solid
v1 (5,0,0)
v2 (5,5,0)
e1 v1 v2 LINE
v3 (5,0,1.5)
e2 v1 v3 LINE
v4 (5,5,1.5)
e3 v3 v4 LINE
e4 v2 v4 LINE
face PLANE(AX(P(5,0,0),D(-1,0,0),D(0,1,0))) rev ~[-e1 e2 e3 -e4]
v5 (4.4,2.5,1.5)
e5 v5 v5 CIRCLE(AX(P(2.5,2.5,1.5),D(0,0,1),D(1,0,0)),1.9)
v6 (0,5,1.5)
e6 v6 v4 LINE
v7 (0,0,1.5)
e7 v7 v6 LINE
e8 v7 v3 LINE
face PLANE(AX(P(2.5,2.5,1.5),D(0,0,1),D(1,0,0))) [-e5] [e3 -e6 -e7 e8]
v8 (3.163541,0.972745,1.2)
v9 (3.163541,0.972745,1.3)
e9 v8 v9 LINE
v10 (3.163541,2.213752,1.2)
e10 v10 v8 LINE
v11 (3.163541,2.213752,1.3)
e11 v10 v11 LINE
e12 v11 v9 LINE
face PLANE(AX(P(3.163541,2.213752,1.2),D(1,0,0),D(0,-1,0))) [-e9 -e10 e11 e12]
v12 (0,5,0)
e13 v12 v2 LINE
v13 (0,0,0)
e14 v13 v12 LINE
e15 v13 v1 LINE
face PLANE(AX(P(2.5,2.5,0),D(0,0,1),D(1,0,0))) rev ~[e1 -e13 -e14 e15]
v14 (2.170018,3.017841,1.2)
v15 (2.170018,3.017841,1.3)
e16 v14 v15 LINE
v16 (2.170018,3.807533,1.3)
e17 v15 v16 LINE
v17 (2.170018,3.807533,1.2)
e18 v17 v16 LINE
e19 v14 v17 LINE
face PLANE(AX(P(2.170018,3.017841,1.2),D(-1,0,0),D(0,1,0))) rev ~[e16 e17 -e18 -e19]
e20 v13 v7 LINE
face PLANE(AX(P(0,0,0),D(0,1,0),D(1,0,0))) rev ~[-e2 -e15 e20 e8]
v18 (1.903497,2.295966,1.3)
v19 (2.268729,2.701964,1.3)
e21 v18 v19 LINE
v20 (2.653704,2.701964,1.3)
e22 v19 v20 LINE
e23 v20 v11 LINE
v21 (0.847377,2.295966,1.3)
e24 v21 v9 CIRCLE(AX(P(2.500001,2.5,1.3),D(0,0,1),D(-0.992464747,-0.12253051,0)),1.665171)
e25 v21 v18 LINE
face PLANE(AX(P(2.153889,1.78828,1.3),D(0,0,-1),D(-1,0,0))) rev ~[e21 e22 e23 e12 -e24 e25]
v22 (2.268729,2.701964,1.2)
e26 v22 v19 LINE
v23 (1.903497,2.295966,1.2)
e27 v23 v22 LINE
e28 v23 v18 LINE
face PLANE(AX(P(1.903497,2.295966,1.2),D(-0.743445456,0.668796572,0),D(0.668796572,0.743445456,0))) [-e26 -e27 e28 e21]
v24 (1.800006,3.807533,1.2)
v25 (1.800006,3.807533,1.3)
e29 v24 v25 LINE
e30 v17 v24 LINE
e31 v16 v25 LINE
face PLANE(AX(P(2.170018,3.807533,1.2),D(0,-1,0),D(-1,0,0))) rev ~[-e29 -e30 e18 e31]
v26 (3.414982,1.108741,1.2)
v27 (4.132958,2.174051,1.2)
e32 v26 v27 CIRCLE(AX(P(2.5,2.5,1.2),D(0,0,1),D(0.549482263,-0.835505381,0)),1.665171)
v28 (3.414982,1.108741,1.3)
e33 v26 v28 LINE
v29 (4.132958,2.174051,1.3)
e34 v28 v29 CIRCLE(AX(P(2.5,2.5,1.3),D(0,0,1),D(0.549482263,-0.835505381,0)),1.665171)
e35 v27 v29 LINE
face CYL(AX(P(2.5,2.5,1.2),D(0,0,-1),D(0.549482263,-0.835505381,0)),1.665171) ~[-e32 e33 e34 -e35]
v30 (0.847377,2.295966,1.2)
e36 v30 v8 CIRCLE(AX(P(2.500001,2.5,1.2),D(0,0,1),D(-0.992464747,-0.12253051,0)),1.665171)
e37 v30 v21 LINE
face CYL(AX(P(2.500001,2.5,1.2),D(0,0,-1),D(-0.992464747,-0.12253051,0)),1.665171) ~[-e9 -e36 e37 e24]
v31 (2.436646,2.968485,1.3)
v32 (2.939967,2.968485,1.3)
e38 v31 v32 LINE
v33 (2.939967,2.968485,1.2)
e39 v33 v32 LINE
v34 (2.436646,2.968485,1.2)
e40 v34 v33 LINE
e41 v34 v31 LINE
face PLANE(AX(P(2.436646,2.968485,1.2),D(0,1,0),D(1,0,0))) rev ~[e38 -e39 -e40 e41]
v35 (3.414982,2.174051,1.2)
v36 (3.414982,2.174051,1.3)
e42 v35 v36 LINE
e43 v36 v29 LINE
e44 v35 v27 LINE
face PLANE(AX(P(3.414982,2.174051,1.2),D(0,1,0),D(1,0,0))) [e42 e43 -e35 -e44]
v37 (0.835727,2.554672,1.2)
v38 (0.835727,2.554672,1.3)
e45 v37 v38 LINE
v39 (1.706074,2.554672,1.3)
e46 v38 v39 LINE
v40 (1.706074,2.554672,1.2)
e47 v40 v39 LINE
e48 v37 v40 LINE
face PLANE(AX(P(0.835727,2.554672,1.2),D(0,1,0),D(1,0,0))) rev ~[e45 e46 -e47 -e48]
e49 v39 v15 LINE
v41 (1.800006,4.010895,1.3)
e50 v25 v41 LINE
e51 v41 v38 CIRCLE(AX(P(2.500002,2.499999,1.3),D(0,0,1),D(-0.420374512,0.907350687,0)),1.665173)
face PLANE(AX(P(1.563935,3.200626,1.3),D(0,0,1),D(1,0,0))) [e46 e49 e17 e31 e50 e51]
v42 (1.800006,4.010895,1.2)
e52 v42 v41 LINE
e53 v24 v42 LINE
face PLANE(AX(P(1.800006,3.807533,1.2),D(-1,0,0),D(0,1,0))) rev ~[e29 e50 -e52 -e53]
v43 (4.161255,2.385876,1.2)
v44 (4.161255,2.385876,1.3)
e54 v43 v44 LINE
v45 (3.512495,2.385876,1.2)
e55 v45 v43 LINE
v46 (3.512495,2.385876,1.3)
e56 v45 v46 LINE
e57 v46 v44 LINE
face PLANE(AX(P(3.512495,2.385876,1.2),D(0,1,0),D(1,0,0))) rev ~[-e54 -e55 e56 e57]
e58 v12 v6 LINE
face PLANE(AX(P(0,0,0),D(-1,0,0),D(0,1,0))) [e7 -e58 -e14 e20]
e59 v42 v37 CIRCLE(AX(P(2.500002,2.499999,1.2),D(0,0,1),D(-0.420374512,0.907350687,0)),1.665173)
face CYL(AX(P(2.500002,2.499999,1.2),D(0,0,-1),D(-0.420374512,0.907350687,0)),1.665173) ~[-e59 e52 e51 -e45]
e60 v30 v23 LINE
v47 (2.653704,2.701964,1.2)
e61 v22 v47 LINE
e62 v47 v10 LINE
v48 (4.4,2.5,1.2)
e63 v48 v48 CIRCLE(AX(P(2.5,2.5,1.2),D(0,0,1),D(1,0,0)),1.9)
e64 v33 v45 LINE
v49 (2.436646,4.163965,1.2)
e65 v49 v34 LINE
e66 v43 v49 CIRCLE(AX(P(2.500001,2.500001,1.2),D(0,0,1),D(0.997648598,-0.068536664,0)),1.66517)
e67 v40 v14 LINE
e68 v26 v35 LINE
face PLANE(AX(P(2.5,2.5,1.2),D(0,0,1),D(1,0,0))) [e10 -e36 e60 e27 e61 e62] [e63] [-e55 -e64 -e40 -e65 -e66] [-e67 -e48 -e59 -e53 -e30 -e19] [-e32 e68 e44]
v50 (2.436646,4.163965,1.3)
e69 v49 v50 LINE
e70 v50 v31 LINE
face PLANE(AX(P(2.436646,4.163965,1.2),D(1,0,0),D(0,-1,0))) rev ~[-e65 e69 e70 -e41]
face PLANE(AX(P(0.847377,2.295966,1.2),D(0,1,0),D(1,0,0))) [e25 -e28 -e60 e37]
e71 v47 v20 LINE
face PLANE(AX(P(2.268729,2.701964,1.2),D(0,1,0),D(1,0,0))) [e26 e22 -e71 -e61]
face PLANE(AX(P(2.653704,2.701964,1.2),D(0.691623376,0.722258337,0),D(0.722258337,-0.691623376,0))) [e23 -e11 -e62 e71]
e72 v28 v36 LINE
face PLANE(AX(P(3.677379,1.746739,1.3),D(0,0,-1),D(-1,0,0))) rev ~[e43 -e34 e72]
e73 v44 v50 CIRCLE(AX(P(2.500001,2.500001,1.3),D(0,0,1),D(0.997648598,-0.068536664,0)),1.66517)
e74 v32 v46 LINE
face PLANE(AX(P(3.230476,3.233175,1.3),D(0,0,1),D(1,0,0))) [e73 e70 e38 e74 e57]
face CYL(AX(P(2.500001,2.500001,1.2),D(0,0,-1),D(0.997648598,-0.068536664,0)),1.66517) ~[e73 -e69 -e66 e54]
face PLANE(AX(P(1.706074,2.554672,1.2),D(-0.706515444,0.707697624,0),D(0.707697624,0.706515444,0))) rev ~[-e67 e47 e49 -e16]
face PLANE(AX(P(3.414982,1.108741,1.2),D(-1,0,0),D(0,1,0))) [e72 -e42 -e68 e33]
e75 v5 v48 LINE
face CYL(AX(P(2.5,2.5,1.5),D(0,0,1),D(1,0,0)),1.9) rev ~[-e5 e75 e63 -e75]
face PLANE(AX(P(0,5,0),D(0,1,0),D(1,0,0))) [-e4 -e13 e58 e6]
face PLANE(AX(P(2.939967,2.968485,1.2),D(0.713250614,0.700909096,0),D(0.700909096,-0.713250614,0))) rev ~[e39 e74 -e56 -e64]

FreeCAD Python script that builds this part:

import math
import FreeCAD as App
import Part
import Sketcher
from FreeCAD import Vector

doc = App.newDocument("Part")
body = doc.addObject("PartDesign::Body", "Body")

sketch1 = body.newObject("Sketcher::SketchObject", "Sketch")
sketch1.AttachmentSupport = (doc.getObject("XY_Plane"), [""])
sketch1.MapMode = "FlatFace"
sketch1.addGeometry([
    Part.LineSegment(Vector(0, 5, 0), Vector(0, 0, 0)),
    Part.LineSegment(Vector(0, 0, 0), Vector(5, 0, 0)),
    Part.LineSegment(Vector(5, 0, 0), Vector(5, 5, 0)),
    Part.LineSegment(Vector(5, 5, 0), Vector(0, 5, 0)),
], False)
sketch1.addConstraint([
    Sketcher.Constraint("Coincident", 0, 2, 1, 1),
    Sketcher.Constraint("Coincident", 1, 2, 2, 1),
    Sketcher.Constraint("Coincident", 2, 2, 3, 1),
    Sketcher.Constraint("Coincident", 3, 2, 0, 1),
    Sketcher.Constraint("Vertical", 0),
    Sketcher.Constraint("Horizontal", 1),
    Sketcher.Constraint("Vertical", 2),
    Sketcher.Constraint("Horizontal", 3),
    Sketcher.Constraint("Coincident", 0, 2, -1, 1),
    Sketcher.Constraint("Equal", 3, 0),
    Sketcher.Constraint("DistanceX", 1, 1, 1, 2, 5.0),
])
pad1 = body.newObject("PartDesign::Pad", "Pad")
pad1.Profile = sketch1
pad1.Length = 1.5

sketch2 = body.newObject("Sketcher::SketchObject", "Sketch001")
sketch2.AttachmentSupport = (doc.getObject("XY_Plane"), [""])
sketch2.MapMode = "FlatFace"
sketch2.AttachmentOffset = App.Placement(Vector(0, 0, 1.5), App.Rotation())
sketch2.addGeometry(Part.Circle(Vector(2.5, 2.5, 0), Vector(0, 0, 1), 1.9), False)
sketch2.addConstraint([
    Sketcher.Constraint("Diameter", 0, 3.8),
    Sketcher.Constraint("DistanceX", -1, 1, 0, 3, 2.5),
    Sketcher.Constraint("DistanceY", -1, 1, 0, 3, 2.5),
])
pocket1 = body.newObject("PartDesign::Pocket", "Pocket")
pocket1.Profile = sketch2
pocket1.Length = 0.3

sketch3 = body.newObject("Sketcher::SketchObject", "Sketch002")
sketch3.AttachmentSupport = (doc.getObject("XY_Plane"), [""])
sketch3.MapMode = "FlatFace"
sketch3.AttachmentOffset = App.Placement(Vector(0, 0, 1.2), App.Rotation())
sketch3.addGeometry([
    Part.LineSegment(Vector(0.835727, 2.554672, 0), Vector(1.706074, 2.554672, 0)),
    Part.LineSegment(Vector(1.706074, 2.554672, 0), Vector(2.170018, 3.017841, 0)),
    Part.LineSegment(Vector(2.170018, 3.017841, 0), Vector(2.170018, 3.807533, 0)),
    Part.LineSegment(Vector(2.170018, 3.807533, 0), Vector(1.800006, 3.807533, 0)),
    Part.LineSegment(Vector(1.800006, 3.807533, 0), Vector(1.800006, 4.010895, 0)),
    Part.ArcOfCircle(Part.Circle(Vector(2.500002, 2.499999, 0), Vector(0, 0, 1), 1.665173), math.radians(114.858234), math.radians(178.118457)),
    Part.LineSegment(Vector(2.436646, 4.163965, 0), Vector(2.436646, 2.968485, 0)),
    Part.LineSegment(Vector(2.436646, 2.968485, 0), Vector(2.939967, 2.968485, 0)),
    Part.LineSegment(Vector(2.939967, 2.968485, 0), Vector(3.512495, 2.385876, 0)),
    Part.LineSegment(Vector(3.512495, 2.385876, 0), Vector(4.161255, 2.385876, 0)),
    Part.ArcOfCircle(Part.Circle(Vector(2.500001, 2.500001, 0), Vector(0, 0, 1), 1.66517), math.radians(-3.929942), math.radians(92.180468)),
    Part.LineSegment(Vector(1.903497, 2.295966, 0), Vector(0.847377, 2.295966, 0)),
    Part.ArcOfCircle(Part.Circle(Vector(2.500001, 2.5, 0), Vector(0, 0, 1), 1.665171), math.radians(-172.961832), math.radians(-66.516693)),
    Part.LineSegment(Vector(3.163541, 0.972745, 0), Vector(3.163541, 2.213752, 0)),
    Part.LineSegment(Vector(3.163541, 2.213752, 0), Vector(2.653704, 2.701964, 0)),
    Part.LineSegment(Vector(2.653704, 2.701964, 0), Vector(2.268729, 2.701964, 0)),
    Part.LineSegment(Vector(2.268729, 2.701964, 0), Vector(1.903497, 2.295966, 0)),
    Part.LineSegment(Vector(3.414982, 2.174051, 0), Vector(3.414982, 1.108741, 0)),
    Part.ArcOfCircle(Part.Circle(Vector(2.5, 2.5, 0), Vector(0, 0, 1), 1.665171), math.radians(-56.668499), math.radians(-11.288265)),
    Part.LineSegment(Vector(4.132958, 2.174051, 0), Vector(3.414982, 2.174051, 0)),
], False)
sketch3.addConstraint([
    Sketcher.Constraint("Coincident", 0, 2, 1, 1),
    Sketcher.Constraint("Coincident", 1, 2, 2, 1),
    Sketcher.Constraint("Coincident", 2, 2, 3, 1),
    Sketcher.Constraint("Coincident", 3, 2, 4, 1),
    Sketcher.Constraint("Coincident", 4, 2, 5, 1),
    Sketcher.Constraint("Coincident", 5, 2, 0, 1),
    Sketcher.Constraint("Coincident", 6, 2, 7, 1),
    Sketcher.Constraint("Coincident", 7, 2, 8, 1),
    Sketcher.Constraint("Coincident", 8, 2, 9, 1),
    Sketcher.Constraint("Coincident", 9, 2, 10, 1),
    Sketcher.Constraint("Coincident", 10, 2, 6, 1),
    Sketcher.Constraint("Coincident", 11, 2, 12, 1),
    Sketcher.Constraint("Coincident", 12, 2, 13, 1),
    Sketcher.Constraint("Coincident", 13, 2, 14, 1),
    Sketcher.Constraint("Coincident", 14, 2, 15, 1),
    Sketcher.Constraint("Coincident", 15, 2, 16, 1),
    Sketcher.Constraint("Coincident", 16, 2, 11, 1),
    Sketcher.Constraint("Coincident", 17, 2, 18, 1),
    Sketcher.Constraint("Coincident", 18, 2, 19, 1),
    Sketcher.Constraint("Coincident", 19, 2, 17, 1),
    Sketcher.Constraint("Horizontal", 0),
    Sketcher.Constraint("Vertical", 2),
    Sketcher.Constraint("Horizontal", 3),
    Sketcher.Constraint("Vertical", 4),
    Sketcher.Constraint("Vertical", 6),
    Sketcher.Constraint("Horizontal", 7),
    Sketcher.Constraint("Horizontal", 9),
    Sketcher.Constraint("Horizontal", 11),
    Sketcher.Constraint("Vertical", 13),
    Sketcher.Constraint("Horizontal", 15),
    Sketcher.Constraint("Vertical", 17),
    Sketcher.Constraint("Horizontal", 19),
    Sketcher.Constraint("Coincident", 10, 3, 5, 3),
    Sketcher.Constraint("Coincident", 12, 3, 5, 3),
    Sketcher.Constraint("Coincident", 18, 3, 5, 3),
    Sketcher.Constraint("DistanceY", -1, 1, 5, 3, 2.499999),
    Sketcher.Constraint("DistanceX", -1, 1, 10, 3, 2.500001),
    Sketcher.Constraint("Radius", 10, 1.66517),
    Sketcher.Constraint("Radius", 12, 1.665171),
    Sketcher.Constraint("Radius", 18, 1.665171),
    Sketcher.Constraint("Radius", 5, 1.665173),
    Sketcher.Constraint("DistanceX", 3, 2, 3, 1, 0.370012),
    Sketcher.Constraint("DistanceX", 7, 1, 7, 2, 0.503321),
    Sketcher.Constraint("DistanceX", 9, 1, 9, 2, 0.64876),
    Sketcher.Constraint("DistanceX", 11, 2, 11, 1, 1.05612),
    Sketcher.Constraint("DistanceY", 2, 1, 2, 2, 0.789692),
    Sketcher.Constraint("DistanceY", 4, 1, 4, 2, 0.203362),
    Sketcher.Constraint("DistanceY", 6, 2, 6, 1, 1.19548),
    Sketcher.Constraint("DistanceY", 17, 2, 17, 1, 1.06531),
    Sketcher.Constraint("DistanceX", 5, 3, 14, 2, 0.153702),
    Sketcher.Constraint("DistanceY", 18, 2, 13, 2, 0.039701),
    Sketcher.Constraint("Distance", 1, 0.655568),
    Sketcher.Constraint("DistanceX", 0, 1, 0, 2, 0.870347),
    Sketcher.Constraint("DistanceX", 15, 2, 15, 1, 0.384975),
    Sketcher.Constraint("DistanceX", 19, 2, 19, 1, 0.717976),
    Sketcher.Constraint("DistanceY", 13, 1, 13, 2, 1.241007),
    Sketcher.Constraint("DistanceY", -1, 1, 0, 2, 2.554672),
    Sketcher.Constraint("DistanceX", 1, 2, 6, 2, 0.266628),
    Sketcher.Constraint("DistanceY", 8, 2, 7, 2, 0.582609),
    Sketcher.Constraint("DistanceX", 5, 2, 11, 2, 0.01165),
    Sketcher.Constraint("DistanceY", 14, 2, 6, 2, 0.266521),
])
pad2 = body.newObject("PartDesign::Pad", "Pad001")
pad2.Profile = sketch3
pad2.Length = 0.1

doc.recompute()
